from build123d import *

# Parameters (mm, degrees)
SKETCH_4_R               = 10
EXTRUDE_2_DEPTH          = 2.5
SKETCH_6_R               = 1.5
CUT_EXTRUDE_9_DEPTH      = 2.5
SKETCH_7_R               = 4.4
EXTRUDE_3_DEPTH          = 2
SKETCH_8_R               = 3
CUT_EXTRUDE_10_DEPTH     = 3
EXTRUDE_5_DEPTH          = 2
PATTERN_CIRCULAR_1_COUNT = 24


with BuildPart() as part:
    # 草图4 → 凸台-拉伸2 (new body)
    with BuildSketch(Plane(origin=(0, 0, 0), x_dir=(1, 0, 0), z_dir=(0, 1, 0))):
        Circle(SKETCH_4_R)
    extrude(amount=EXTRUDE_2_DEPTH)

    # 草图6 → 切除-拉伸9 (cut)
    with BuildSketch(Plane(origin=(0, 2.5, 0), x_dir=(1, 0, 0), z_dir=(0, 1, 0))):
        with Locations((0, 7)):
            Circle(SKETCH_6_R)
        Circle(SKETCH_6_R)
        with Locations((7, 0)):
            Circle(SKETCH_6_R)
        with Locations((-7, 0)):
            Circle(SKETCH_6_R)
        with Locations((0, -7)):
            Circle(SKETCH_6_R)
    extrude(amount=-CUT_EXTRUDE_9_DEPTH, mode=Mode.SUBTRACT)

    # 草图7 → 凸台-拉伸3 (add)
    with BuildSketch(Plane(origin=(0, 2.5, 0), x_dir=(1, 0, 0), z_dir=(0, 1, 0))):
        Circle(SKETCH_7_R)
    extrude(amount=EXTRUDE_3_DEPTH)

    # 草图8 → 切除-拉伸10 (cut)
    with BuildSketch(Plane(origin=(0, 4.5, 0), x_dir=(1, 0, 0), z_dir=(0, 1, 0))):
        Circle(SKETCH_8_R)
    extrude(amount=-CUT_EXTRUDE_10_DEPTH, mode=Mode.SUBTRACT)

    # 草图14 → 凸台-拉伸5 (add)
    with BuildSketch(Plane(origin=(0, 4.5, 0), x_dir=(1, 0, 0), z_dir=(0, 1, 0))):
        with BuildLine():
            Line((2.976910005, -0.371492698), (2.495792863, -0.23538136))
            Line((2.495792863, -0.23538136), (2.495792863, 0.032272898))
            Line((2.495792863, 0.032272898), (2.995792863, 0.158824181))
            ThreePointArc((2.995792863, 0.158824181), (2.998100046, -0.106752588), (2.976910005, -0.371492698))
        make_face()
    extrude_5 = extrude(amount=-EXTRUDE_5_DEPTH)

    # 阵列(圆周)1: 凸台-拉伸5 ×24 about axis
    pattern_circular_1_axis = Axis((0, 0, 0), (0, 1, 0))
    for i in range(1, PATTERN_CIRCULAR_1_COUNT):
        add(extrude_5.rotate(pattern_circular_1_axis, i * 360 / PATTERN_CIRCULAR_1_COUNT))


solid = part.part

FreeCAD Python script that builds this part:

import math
import FreeCAD as App
import Part
import Sketcher
from FreeCAD import Vector
Q = App.Units.Quantity

doc = App.newDocument("Part")
params = doc.addObject("Spreadsheet::Sheet", "Params")
for row, (alias, value) in enumerate([
    ("sketch1_diameter", "20 mm"),
    ("pad1_length", "2.5 mm"),
    ("sketch2_diameter", "3 mm"),
    ("pocket1_length", "2.5 mm"),
    ("sketch3_diameter", "8.8 mm"),
    ("pad2_length", "2 mm"),
    ("sketch4_diameter", "6 mm"),
    ("pocket2_length", "3 mm"),
    ("sketch5_radius", "3 mm"),
    ("sketch5_length", "0.5 mm"),
    ("pad3_length", "2 mm"),
], start=1):
    params.set(f"A{row}", alias)
    params.set(f"B{row}", "=" + value)
    params.setAlias(f"B{row}", alias)

body = doc.addObject("PartDesign::Body", "Body")

# Sketch on XZ plane
sketch1 = body.newObject("Sketcher::SketchObject", "Sketch")
sketch1.AttachmentSupport = (doc.getObject("XZ_Plane"), [""])
sketch1.MapMode = "FlatFace"
sketch1.addGeometry(Part.Circle(Vector(0, 0, 0), Vector(0, 0, 1), 10), False)
sketch1.addConstraint(Sketcher.Constraint("Coincident", 0, 3, -1, 1))
sketch1.addConstraint(Sketcher.Constraint("Diameter", 0, Q("20 mm")))
sketch1.setExpression("Constraints[1]", "Params.sketch1_diameter")
pad1 = body.newObject("PartDesign::Pad", "Pad")
pad1.Profile = sketch1
pad1.setExpression("Length", "Params.pad1_length")
pad1.Reversed = True

# Sketch on XZ plane
sketch2 = body.newObject("Sketcher::SketchObject", "Sketch001")
sketch2.AttachmentSupport = (doc.getObject("XZ_Plane"), [""])
sketch2.MapMode = "FlatFace"
sketch2.AttachmentOffset = App.Placement(Vector(0, 0, -2.5), App.Rotation())
sketch2.addGeometry(Part.Circle(Vector(0, -7, 0), Vector(0, 0, 1), 1.5), False)
sketch2.addGeometry(Part.Circle(Vector(0, 0, 0), Vector(0, 0, 1), 1.5), False)
sketch2.addGeometry(Part.Circle(Vector(7, 0, 0), Vector(0, 0, 1), 1.5), False)
sketch2.addGeometry(Part.Circle(Vector(-7, 0, 0), Vector(0, 0, 1), 1.5), False)
sketch2.addGeometry(Part.Circle(Vector(0, 7, 0), Vector(0, 0, 1), 1.5), False)
sketch2.addConstraint(Sketcher.Constraint("Coincident", 1, 3, -1, 1))
sketch2.addConstraint(Sketcher.Constraint("Equal", 0, 1))
sketch2.addConstraint(Sketcher.Constraint("Equal", 1, 2))
sketch2.addConstraint(Sketcher.Constraint("Equal", 2, 3))
sketch2.addConstraint(Sketcher.Constraint("Equal", 3, 4))
sketch2.addConstraint(Sketcher.Constraint("Symmetric", 2, 3, 3, 3, -1, 1))
sketch2.addConstraint(Sketcher.Constraint("Symmetric", 0, 3, 4, 3, -1, 1))
sketch2.addConstraint(Sketcher.Constraint("PointOnObject", 0, 3, -2))
sketch2.addConstraint(Sketcher.Constraint("PointOnObject", 2, 3, -1))
sketch2.addConstraint(Sketcher.Constraint("Diameter", 0, Q("3 mm")))
sketch2.addConstraint(Sketcher.Constraint("DistanceY", 0, 3, -1, 1, Q("7 mm")))
sketch2.addConstraint(Sketcher.Constraint("DistanceX", -1, 1, 2, 3, Q("7 mm")))
sketch2.setExpression("Constraints[9]", "Params.sketch2_diameter")
pocket1 = body.newObject("PartDesign::Pocket", "Pocket")
pocket1.Profile = sketch2
pocket1.setExpression("Length", "Params.pocket1_length")
pocket1.Reversed = True

# Sketch on XZ plane
sketch3 = body.newObject("Sketcher::SketchObject", "Sketch002")
sketch3.AttachmentSupport = (doc.getObject("XZ_Plane"), [""])
sketch3.MapMode = "FlatFace"
sketch3.AttachmentOffset = App.Placement(Vector(0, 0, -2.5), App.Rotation())
sketch3.addGeometry(Part.Circle(Vector(0, 0, 0), Vector(0, 0, 1), 4.4), False)
sketch3.addConstraint(Sketcher.Constraint("Coincident", 0, 3, -1, 1))
sketch3.addConstraint(Sketcher.Constraint("Diameter", 0, Q("8.8 mm")))
sketch3.setExpression("Constraints[1]", "Params.sketch3_diameter")
pad2 = body.newObject("PartDesign::Pad", "Pad001")
pad2.Profile = sketch3
pad2.setExpression("Length", "Params.pad2_length")
pad2.Reversed = True

# Sketch on XZ plane
sketch4 = body.newObject("Sketcher::SketchObject", "Sketch003")
sketch4.AttachmentSupport = (doc.getObject("XZ_Plane"), [""])
sketch4.MapMode = "FlatFace"
sketch4.AttachmentOffset = App.Placement(Vector(0, 0, -4.5), App.Rotation())
sketch4.addGeometry(Part.Circle(Vector(0, 0, 0), Vector(0, 0, 1), 3), False)
sketch4.addConstraint(Sketcher.Constraint("Coincident", 0, 3, -1, 1))
sketch4.addConstraint(Sketcher.Constraint("Diameter", 0, Q("6 mm")))
sketch4.setExpression("Constraints[1]", "Params.sketch4_diameter")
pocket2 = body.newObject("PartDesign::Pocket", "Pocket001")
pocket2.Profile = sketch4
pocket2.setExpression("Length", "Params.pocket2_length")
pocket2.Reversed = True

# Sketch on XZ plane
sketch5 = body.newObject("Sketcher::SketchObject", "Sketch004")
sketch5.AttachmentSupport = (doc.getObject("XZ_Plane"), [""])
sketch5.MapMode = "FlatFace"
sketch5.AttachmentOffset = App.Placement(Vector(0, 0, -4.5), App.Rotation())
sketch5.addGeometry(Part.LineSegment(Vector(2.5, 0.24, 0), Vector(2.98, 0.37, 0)), False)
sketch5.addGeometry(Part.ArcOfCircle(Part.Circle(Vector(0, 0, 0), Vector(0, 0, 1), 3), math.radians(-3.03), math.radians(7.11)), False)
sketch5.addGeometry(Part.LineSegment(Vector(3, -0.16, 0), Vector(2.5, -0.03, 0)), False)
sketch5.addGeometry(Part.LineSegment(Vector(2.5, -0.03, 0), Vector(2.5, 0.24, 0)), False)
sketch5.addConstraint(Sketcher.Constraint("Coincident", 0, 2, 1, 2))
sketch5.addConstraint(Sketcher.Constraint("Coincident", 1, 1, 2, 1))
sketch5.addConstraint(Sketcher.Constraint("Coincident", 2, 2, 3, 1))
sketch5.addConstraint(Sketcher.Constraint("Coincident", 3, 2, 0, 1))
sketch5.addConstraint(Sketcher.Constraint("Vertical", 3))
sketch5.addConstraint(Sketcher.Constraint("Coincident", 1, 3, -1, 1))
sketch5.addConstraint(Sketcher.Constraint("Radius", 1, Q("3 mm")))
sketch5.addConstraint(Sketcher.Constraint("Distance", 0, Q("0.5 mm")))
sketch5.addConstraint(Sketcher.Constraint("DistanceX", 2, 2, 1, 1, Q("0.5 mm")))
sketch5.addConstraint(Sketcher.Constraint("DistanceY", 3, 1, 3, 2, Q("0.267654 mm")))
sketch5.addConstraint(Sketcher.Constraint("DistanceX", -1, 1, 0, 2, Q("2.97691 mm")))
sketch5.addConstraint(Sketcher.Constraint("DistanceY", -1, 1, 3, 2, Q("0.235381 mm")))
sketch5.setExpression("Constraints[6]", "Params.sketch5_radius")
sketch5.setExpression("Constraints[7]", "Params.sketch5_length")
pad3 = body.newObject("PartDesign::Pad", "Pad002")
pad3.Profile = sketch5
pad3.setExpression("Length", "Params.pad3_length")
doc.recompute()

polarpattern = body.newObject("PartDesign::PolarPattern", "PolarPattern")
polarpattern.Originals = [pad3]
polarpattern.Axis = (doc.getObject("Y_Axis"), [""])
polarpattern.Angle = 360
polarpattern.Occurrences = 24
body.Tip = polarpattern

doc.recompute()
